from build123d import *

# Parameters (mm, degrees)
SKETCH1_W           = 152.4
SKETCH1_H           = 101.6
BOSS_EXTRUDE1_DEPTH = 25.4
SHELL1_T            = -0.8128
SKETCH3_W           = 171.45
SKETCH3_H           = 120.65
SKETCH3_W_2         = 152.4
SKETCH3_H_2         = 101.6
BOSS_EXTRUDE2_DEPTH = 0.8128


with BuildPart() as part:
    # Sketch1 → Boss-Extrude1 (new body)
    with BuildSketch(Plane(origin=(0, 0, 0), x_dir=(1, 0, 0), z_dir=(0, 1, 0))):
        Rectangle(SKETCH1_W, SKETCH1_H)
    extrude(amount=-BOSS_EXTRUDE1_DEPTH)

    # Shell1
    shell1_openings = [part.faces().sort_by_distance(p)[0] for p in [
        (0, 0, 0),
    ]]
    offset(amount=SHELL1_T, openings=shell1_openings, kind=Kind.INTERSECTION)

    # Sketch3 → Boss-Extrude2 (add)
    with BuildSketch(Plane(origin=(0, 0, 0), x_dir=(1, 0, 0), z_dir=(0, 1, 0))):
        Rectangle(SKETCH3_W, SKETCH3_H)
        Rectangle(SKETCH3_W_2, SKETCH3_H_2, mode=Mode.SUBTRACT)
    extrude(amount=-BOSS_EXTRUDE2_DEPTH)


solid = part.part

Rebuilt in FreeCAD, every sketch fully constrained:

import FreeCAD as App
import Part
import Sketcher
from FreeCAD import Vector
Q = App.Units.Quantity


def faces_at(feature, points):
    """Names of the faces that lie closest to the given points."""
    faces = feature.Shape.Faces
    near = lambda p: min(range(len(faces)), key=lambda i: faces[i].distToShape(Part.Vertex(*p))[0])
    return sorted({f"Face{near(p) + 1}" for p in points})

doc = App.newDocument("Part")
body = doc.addObject("PartDesign::Body", "Body")

# Sketch on XZ plane
sketch1 = body.newObject("Sketcher::SketchObject", "Sketch")
sketch1.AttachmentSupport = (doc.getObject("XZ_Plane"), [""])
sketch1.MapMode = "FlatFace"
sketch1.addGeometry([
    Part.LineSegment(Vector(-76, -51, 0), Vector(-76, 51, 0)),
    Part.LineSegment(Vector(-76, 51, 0), Vector(76, 51, 0)),
    Part.LineSegment(Vector(76, 51, 0), Vector(76, -51, 0)),
    Part.LineSegment(Vector(76, -51, 0), Vector(-76, -51, 0)),
], False)
sketch1.addConstraint([
    Sketcher.Constraint("Coincident", 0, 2, 1, 1),
    Sketcher.Constraint("Coincident", 1, 2, 2, 1),
    Sketcher.Constraint("Coincident", 2, 2, 3, 1),
    Sketcher.Constraint("Coincident", 3, 2, 0, 1),
    Sketcher.Constraint("Vertical", 0),
    Sketcher.Constraint("Horizontal", 1),
    Sketcher.Constraint("Vertical", 2),
    Sketcher.Constraint("Horizontal", 3),
    Sketcher.Constraint("Symmetric", 0, 2, 2, 2, -1, 1),
    Sketcher.Constraint("DistanceX", 1, 1, 1, 2, Q("6 in")),
    Sketcher.Constraint("DistanceY", 0, 1, 0, 2, Q("4 in")),
])
pad1 = body.newObject("PartDesign::Pad", "Pad")
pad1.Profile = sketch1
pad1.Length = Q("1 in")
doc.recompute()

thickness = body.newObject("PartDesign::Thickness", "Thickness")
thickness.Base = (pad1, faces_at(pad1, [(0, 0, 0)]))
thickness.Value = Q("0.032 in")
thickness.Reversed = True
thickness.Join = "Intersection"

# Sketch on XZ plane
sketch2 = body.newObject("Sketcher::SketchObject", "Sketch001")
sketch2.AttachmentSupport = (doc.getObject("XZ_Plane"), [""])
sketch2.MapMode = "FlatFace"
sketch2.addGeometry([
    Part.LineSegment(Vector(-86, -60, 0), Vector(-86, 60, 0)),  # 0
    Part.LineSegment(Vector(-86, 60, 0), Vector(86, 60, 0)),  # 1
    Part.LineSegment(Vector(86, 60, 0), Vector(86, -60, 0)),  # 2
    Part.LineSegment(Vector(86, -60, 0), Vector(-86, -60, 0)),  # 3
    Part.LineSegment(Vector(76, 51, 0), Vector(-76, 51, 0)),  # 4
    Part.LineSegment(Vector(-76, 51, 0), Vector(-76, -51, 0)),  # 5
    Part.LineSegment(Vector(-76, -51, 0), Vector(76, -51, 0)),  # 6
    Part.LineSegment(Vector(76, -51, 0), Vector(76, 51, 0)),  # 7
], False)
sketch2.addConstraint([
    Sketcher.Constraint("Coincident", 0, 2, 1, 1),
    Sketcher.Constraint("Coincident", 1, 2, 2, 1),
    Sketcher.Constraint("Coincident", 2, 2, 3, 1),
    Sketcher.Constraint("Coincident", 3, 2, 0, 1),
    Sketcher.Constraint("Coincident", 4, 2, 5, 1),
    Sketcher.Constraint("Coincident", 5, 2, 6, 1),
    Sketcher.Constraint("Coincident", 6, 2, 7, 1),
    Sketcher.Constraint("Coincident", 7, 2, 4, 1),
    Sketcher.Constraint("Vertical", 0),
    Sketcher.Constraint("Horizontal", 1),
    Sketcher.Constraint("Vertical", 2),
    Sketcher.Constraint("Horizontal", 3),
    Sketcher.Constraint("Horizontal", 4),
    Sketcher.Constraint("Vertical", 5),
    Sketcher.Constraint("Horizontal", 6),
    Sketcher.Constraint("Vertical", 7),
    Sketcher.Constraint("Symmetric", 0, 2, 2, 2, -1, 1),
    Sketcher.Constraint("Symmetric", 4, 2, 6, 2, -1, 1),
    Sketcher.Constraint("DistanceX", 4, 2, 4, 1, Q("6 in")),
    Sketcher.Constraint("DistanceY", 5, 2, 5, 1, Q("4 in")),
    Sketcher.Constraint("DistanceX", 1, 1, 1, 2, Q("6.75 in")),
    Sketcher.Constraint("DistanceY", 0, 1, 0, 2, Q("4.75 in")),
])
pad2 = body.newObject("PartDesign::Pad", "Pad001")
pad2.Profile = sketch2
pad2.Length = Q("0.032 in")

doc.recompute()
